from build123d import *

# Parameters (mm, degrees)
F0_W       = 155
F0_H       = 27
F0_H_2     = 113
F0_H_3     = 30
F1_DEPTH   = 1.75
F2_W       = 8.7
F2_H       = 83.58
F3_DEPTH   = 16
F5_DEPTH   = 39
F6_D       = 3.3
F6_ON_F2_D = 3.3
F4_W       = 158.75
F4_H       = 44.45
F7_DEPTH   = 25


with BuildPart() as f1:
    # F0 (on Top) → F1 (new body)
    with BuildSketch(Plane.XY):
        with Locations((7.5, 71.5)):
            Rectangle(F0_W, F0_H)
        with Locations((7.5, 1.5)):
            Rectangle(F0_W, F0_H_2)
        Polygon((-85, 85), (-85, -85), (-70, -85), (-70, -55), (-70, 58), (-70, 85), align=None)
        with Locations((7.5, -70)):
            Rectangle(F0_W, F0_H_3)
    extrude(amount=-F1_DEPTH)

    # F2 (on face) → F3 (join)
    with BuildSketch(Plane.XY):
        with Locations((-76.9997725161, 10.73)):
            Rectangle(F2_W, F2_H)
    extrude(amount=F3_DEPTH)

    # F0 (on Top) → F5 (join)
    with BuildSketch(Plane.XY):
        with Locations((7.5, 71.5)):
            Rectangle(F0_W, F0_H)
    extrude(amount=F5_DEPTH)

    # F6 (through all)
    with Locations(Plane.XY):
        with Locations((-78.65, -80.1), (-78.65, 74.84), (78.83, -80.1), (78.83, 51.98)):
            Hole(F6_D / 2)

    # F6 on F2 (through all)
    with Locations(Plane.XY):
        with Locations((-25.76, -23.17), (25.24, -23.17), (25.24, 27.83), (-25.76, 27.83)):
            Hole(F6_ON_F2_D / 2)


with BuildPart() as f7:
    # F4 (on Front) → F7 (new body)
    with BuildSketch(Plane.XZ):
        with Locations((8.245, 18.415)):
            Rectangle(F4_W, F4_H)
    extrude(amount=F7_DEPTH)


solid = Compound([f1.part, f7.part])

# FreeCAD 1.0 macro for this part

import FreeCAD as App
import Part
import Sketcher
from FreeCAD import Vector
Q = App.Units.Quantity


def add_polygon(sketch, points):
    """Adds a closed chain of lines whose ends are joined by coincident constraints."""
    first, n = sketch.GeometryCount, len(points)
    for a, b in zip(points, points[1:] + points[:1]):
        sketch.addGeometry(Part.LineSegment(App.Vector(*a, 0), App.Vector(*b, 0)), False)
    for i in range(n):
        sketch.addConstraint(Sketcher.Constraint("Coincident", first + i, 2, first + (i + 1) % n, 1))

doc = App.newDocument("Part")
body = doc.addObject("PartDesign::Body", "Body")

# Sketch on XY plane
sketch1 = body.newObject("Sketcher::SketchObject", "Sketch")
sketch1.AttachmentSupport = (doc.getObject("XY_Plane"), [""])
sketch1.MapMode = "FlatFace"
add_polygon(sketch1, [(85, 85), (-85, 85), (-85, -85), (85, -85)])  # lines 0-3
sketch1.addConstraint([
    Sketcher.Constraint("Horizontal", 0),
    Sketcher.Constraint("Vertical", 1),
    Sketcher.Constraint("Horizontal", 2),
    Sketcher.Constraint("Vertical", 3),
    Sketcher.Constraint("Symmetric", 0, 2, 2, 2, -1, 1),
    Sketcher.Constraint("Equal", 2, 1),
    Sketcher.Constraint("DistanceX", 0, 2, 0, 1, Q("170 mm")),
])
pad1 = body.newObject("PartDesign::Pad", "Pad")
pad1.Profile = sketch1
pad1.Length = 1.75
pad1.Reversed = True

# Sketch on XY plane
sketch2 = body.newObject("Sketcher::SketchObject", "Sketch001")
sketch2.AttachmentSupport = (doc.getObject("XY_Plane"), [""])
sketch2.MapMode = "FlatFace"
add_polygon(sketch2, [(-81, 53), (-81, -31), (-73, -31), (-73, 53)])  # lines 0-3
sketch2.addConstraint([
    Sketcher.Constraint("Vertical", 0),
    Sketcher.Constraint("Horizontal", 1),
    Sketcher.Constraint("Vertical", 2),
    Sketcher.Constraint("Horizontal", 3),
    Sketcher.Constraint("DistanceX", 1, 1, 1, 2, Q("8.7 mm")),
    Sketcher.Constraint("DistanceY", 0, 2, 0, 1, Q("83.58 mm")),
    Sketcher.Constraint("DistanceY", 0, 2, -1, 1, Q("31.06 mm")),
    Sketcher.Constraint("DistanceX", 0, 2, -1, 1, Q("81.349773 mm")),
])
pad2 = body.newObject("PartDesign::Pad", "Pad001")
pad2.Profile = sketch2
pad2.Length = 16

# Sketch on XY plane
sketch3 = body.newObject("Sketcher::SketchObject", "Sketch002")
sketch3.AttachmentSupport = (doc.getObject("XY_Plane"), [""])
sketch3.MapMode = "FlatFace"
add_polygon(sketch3, [(-70, 85), (-70, 58), (85, 58), (85, 85)])  # lines 0-3
sketch3.addConstraint([
    Sketcher.Constraint("Vertical", 0),
    Sketcher.Constraint("Horizontal", 1),
    Sketcher.Constraint("Vertical", 2),
    Sketcher.Constraint("Horizontal", 3),
    Sketcher.Constraint("DistanceX", 1, 1, 1, 2, Q("155 mm")),
    Sketcher.Constraint("DistanceY", 0, 2, 0, 1, Q("27 mm")),
    Sketcher.Constraint("DistanceX", 0, 2, -1, 1, Q("70 mm")),
    Sketcher.Constraint("DistanceY", -1, 1, 0, 2, Q("58 mm")),
])
pad3 = body.newObject("PartDesign::Pad", "Pad002")
pad3.Profile = sketch3
pad3.Length = 39

# Sketch on XY plane
sketch4 = body.newObject("Sketcher::SketchObject", "Sketch003")
sketch4.AttachmentSupport = (doc.getObject("XY_Plane"), [""])
sketch4.MapMode = "FlatFace"
sketch4.addGeometry([
    Part.Circle(Vector(-78.7, -80.1, 0), Vector(0, 0, 1), 1.6),
    Part.Circle(Vector(-78.7, 74.8, 0), Vector(0, 0, 1), 1.6),
    Part.Circle(Vector(78.8, -80.1, 0), Vector(0, 0, 1), 1.6),
    Part.Circle(Vector(78.8, 52, 0), Vector(0, 0, 1), 1.6),
], False)
sketch4.addConstraint([
    Sketcher.Constraint("Equal", 0, 1),
    Sketcher.Constraint("Equal", 1, 2),
    Sketcher.Constraint("Equal", 2, 3),
    Sketcher.Constraint("Horizontal", 0, 3, 2, 3),
    Sketcher.Constraint("Vertical", 0, 3, 1, 3),
    Sketcher.Constraint("Vertical", 2, 3, 3, 3),
    Sketcher.Constraint("Diameter", 0, Q("3.3 mm")),
    Sketcher.Constraint("DistanceY", 0, 3, -1, 1, Q("80.1 mm")),
    Sketcher.Constraint("DistanceX", 0, 3, -1, 1, Q("78.65 mm")),
    Sketcher.Constraint("DistanceY", -1, 1, 1, 3, Q("74.84 mm")),
    Sketcher.Constraint("DistanceX", -1, 1, 2, 3, Q("78.83 mm")),
    Sketcher.Constraint("DistanceY", -1, 1, 3, 3, Q("51.98 mm")),
])
doc.recompute()
hole = body.newObject("PartDesign::Hole", "Hole")
hole.Profile = sketch4
hole.ThreadType = "None"
hole.Diameter = 3.3
hole.DepthType = "ThroughAll"

# Sketch on XY plane
sketch5 = body.newObject("Sketcher::SketchObject", "Sketch004")
sketch5.AttachmentSupport = (doc.getObject("XY_Plane"), [""])
sketch5.MapMode = "FlatFace"
sketch5.addGeometry([
    Part.Circle(Vector(-25.8, -23.2, 0), Vector(0, 0, 1), 1.6),
    Part.Circle(Vector(25.2, -23.2, 0), Vector(0, 0, 1), 1.6),
    Part.Circle(Vector(25.2, 27.8, 0), Vector(0, 0, 1), 1.6),
    Part.Circle(Vector(-25.8, 27.8, 0), Vector(0, 0, 1), 1.6),
], False)
sketch5.addConstraint([
    Sketcher.Constraint("Equal", 0, 1),
    Sketcher.Constraint("Equal", 1, 2),
    Sketcher.Constraint("Equal", 2, 3),
    Sketcher.Constraint("Horizontal", 0, 3, 1, 3),
    Sketcher.Constraint("Horizontal", 2, 3, 3, 3),
    Sketcher.Constraint("Vertical", 1, 3, 2, 3),
    Sketcher.Constraint("Vertical", 0, 3, 3, 3),
    Sketcher.Constraint("Diameter", 0, Q("3.3 mm")),
    Sketcher.Constraint("DistanceX", 0, 3, 1, 3, Q("51 mm")),
    Sketcher.Constraint("DistanceY", 1, 3, 2, 3, Q("51 mm")),
    Sketcher.Constraint("DistanceX", 0, 3, -1, 1, Q("25.76 mm")),
    Sketcher.Constraint("DistanceY", 0, 3, -1, 1, Q("23.17 mm")),
])
doc.recompute()
hole2 = body.newObject("PartDesign::Hole", "Hole001")
hole2.Profile = sketch5
hole2.ThreadType = "None"
hole2.Diameter = 3.3
hole2.DepthType = "ThroughAll"
body2 = doc.addObject("PartDesign::Body", "Body001")

# Sketch on XZ plane
sketch6 = body2.newObject("Sketcher::SketchObject", "Sketch005")
sketch6.AttachmentSupport = (doc.getObject("XZ_Plane001"), [""])
sketch6.MapMode = "FlatFace"
add_polygon(sketch6, [(-71, 41), (-71, -4), (88, -4), (88, 41)])  # lines 0-3
sketch6.addConstraint([
    Sketcher.Constraint("Vertical", 0),
    Sketcher.Constraint("Horizontal", 1),
    Sketcher.Constraint("Vertical", 2),
    Sketcher.Constraint("Horizontal", 3),
    Sketcher.Constraint("DistanceX", 1, 1, 1, 2, Q("158.75 mm")),
    Sketcher.Constraint("DistanceY", 0, 2, 0, 1, Q("44.45 mm")),
    Sketcher.Constraint("DistanceX", 0, 2, -1, 1, Q("71.13 mm")),
    Sketcher.Constraint("DistanceY", 0, 2, -1, 1, Q("3.81 mm")),
])
pad4 = body2.newObject("PartDesign::Pad", "Pad003")
pad4.Profile = sketch6
pad4.Length = 25

doc.recompute()
